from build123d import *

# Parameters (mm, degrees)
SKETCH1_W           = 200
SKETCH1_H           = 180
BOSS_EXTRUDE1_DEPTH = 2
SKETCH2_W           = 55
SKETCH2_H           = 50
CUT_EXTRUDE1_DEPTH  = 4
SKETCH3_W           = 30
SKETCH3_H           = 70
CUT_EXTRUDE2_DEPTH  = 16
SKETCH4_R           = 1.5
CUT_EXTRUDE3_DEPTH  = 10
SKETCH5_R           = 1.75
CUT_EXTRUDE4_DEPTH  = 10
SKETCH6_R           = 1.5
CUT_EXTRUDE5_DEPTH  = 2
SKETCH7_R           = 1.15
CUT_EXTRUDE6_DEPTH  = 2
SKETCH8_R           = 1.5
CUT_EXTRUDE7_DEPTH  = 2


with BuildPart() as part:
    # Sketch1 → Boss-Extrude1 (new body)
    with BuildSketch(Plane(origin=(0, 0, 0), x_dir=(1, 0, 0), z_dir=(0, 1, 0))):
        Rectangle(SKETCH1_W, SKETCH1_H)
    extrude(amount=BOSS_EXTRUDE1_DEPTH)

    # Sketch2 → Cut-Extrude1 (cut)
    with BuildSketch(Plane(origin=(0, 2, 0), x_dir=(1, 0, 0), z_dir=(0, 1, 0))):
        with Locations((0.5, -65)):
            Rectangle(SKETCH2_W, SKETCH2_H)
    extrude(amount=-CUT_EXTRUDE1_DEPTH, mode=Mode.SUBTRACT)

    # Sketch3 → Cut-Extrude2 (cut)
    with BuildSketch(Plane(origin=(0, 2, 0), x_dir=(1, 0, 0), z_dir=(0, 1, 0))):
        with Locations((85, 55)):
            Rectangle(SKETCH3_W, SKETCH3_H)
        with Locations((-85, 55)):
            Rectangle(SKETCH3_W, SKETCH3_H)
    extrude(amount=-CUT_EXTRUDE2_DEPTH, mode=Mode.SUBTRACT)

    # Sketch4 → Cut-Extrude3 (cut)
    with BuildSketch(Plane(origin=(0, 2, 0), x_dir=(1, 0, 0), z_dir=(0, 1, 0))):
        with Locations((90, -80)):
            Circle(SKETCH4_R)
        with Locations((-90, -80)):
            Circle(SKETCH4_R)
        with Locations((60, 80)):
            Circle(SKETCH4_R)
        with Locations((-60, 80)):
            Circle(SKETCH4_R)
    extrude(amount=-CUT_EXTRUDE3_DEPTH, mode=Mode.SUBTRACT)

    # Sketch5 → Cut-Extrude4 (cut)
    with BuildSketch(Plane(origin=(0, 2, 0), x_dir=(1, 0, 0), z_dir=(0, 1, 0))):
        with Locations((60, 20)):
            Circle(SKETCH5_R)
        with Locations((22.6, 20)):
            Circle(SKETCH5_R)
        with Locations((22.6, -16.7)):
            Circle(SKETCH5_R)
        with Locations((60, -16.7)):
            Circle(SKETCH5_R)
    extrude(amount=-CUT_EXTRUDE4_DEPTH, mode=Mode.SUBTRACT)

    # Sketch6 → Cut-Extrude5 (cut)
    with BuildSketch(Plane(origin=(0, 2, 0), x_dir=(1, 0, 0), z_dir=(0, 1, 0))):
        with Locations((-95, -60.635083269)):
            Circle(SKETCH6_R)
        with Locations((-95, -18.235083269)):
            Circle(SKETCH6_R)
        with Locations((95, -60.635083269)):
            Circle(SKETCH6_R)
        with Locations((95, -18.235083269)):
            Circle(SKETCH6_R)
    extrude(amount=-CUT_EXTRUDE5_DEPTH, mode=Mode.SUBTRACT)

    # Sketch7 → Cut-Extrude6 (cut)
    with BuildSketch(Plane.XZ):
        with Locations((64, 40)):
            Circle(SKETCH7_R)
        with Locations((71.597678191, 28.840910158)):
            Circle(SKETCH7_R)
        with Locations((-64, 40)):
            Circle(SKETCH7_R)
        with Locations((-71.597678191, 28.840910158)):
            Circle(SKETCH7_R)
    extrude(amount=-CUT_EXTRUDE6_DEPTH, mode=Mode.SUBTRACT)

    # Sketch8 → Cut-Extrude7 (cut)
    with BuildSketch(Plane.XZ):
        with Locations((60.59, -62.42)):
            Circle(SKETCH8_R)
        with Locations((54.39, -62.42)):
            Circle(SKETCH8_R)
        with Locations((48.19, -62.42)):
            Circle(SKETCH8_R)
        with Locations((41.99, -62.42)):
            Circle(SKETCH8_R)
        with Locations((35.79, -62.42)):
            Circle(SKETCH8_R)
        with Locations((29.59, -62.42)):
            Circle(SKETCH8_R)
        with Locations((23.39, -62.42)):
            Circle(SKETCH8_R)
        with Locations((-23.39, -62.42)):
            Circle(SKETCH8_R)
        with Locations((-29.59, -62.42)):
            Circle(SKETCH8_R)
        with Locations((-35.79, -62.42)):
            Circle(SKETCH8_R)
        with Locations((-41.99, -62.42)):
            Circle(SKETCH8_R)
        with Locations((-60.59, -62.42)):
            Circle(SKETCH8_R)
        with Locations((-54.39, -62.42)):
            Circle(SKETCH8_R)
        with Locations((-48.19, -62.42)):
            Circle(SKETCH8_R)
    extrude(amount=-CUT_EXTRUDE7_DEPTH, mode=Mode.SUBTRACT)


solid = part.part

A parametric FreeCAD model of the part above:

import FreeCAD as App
import Part
import Sketcher
from FreeCAD import Vector

doc = App.newDocument("Part")
body = doc.addObject("PartDesign::Body", "Body")

sketch1 = doc.addObject("Sketcher::SketchObject", "Sketch")
body.addObject(sketch1)
sketch1.AttachmentSupport = (doc.XZ_Plane, [""])
sketch1.MapMode = "FlatFace"
sketch1.addGeometry([
    Part.LineSegment(Vector(-100, -90, 0), Vector(-100, 90, 0)),
    Part.LineSegment(Vector(-100, 90, 0), Vector(100, 90, 0)),
    Part.LineSegment(Vector(100, 90, 0), Vector(100, -90, 0)),
    Part.LineSegment(Vector(100, -90, 0), Vector(-100, -90, 0)),
], False)
sketch1.addConstraint([
    Sketcher.Constraint("Coincident", 0, 2, 1, 1),
    Sketcher.Constraint("Coincident", 1, 2, 2, 1),
    Sketcher.Constraint("Coincident", 2, 2, 3, 1),
    Sketcher.Constraint("Coincident", 3, 2, 0, 1),
    Sketcher.Constraint("Vertical", 0),
    Sketcher.Constraint("Horizontal", 1),
    Sketcher.Constraint("Vertical", 2),
    Sketcher.Constraint("Horizontal", 3),
    Sketcher.Constraint("Symmetric", 0, 2, 2, 2, -1, 1),
    Sketcher.Constraint("DistanceX", 1, 1, 1, 2, 200.0),
    Sketcher.Constraint("DistanceY", 0, 1, 0, 2, 180.0),
])
pad1 = doc.addObject("PartDesign::Pad", "Pad")
body.addObject(pad1)
pad1.Profile = sketch1
pad1.Length = 2
pad1.Reversed = True

sketch2 = doc.addObject("Sketcher::SketchObject", "Sketch001")
body.addObject(sketch2)
sketch2.AttachmentSupport = (doc.XZ_Plane, [""])
sketch2.MapMode = "FlatFace"
sketch2.AttachmentOffset = App.Placement(Vector(0, 0, -2), App.Rotation())
sketch2.addGeometry([
    Part.LineSegment(Vector(-27, 40, 0), Vector(-27, 90, 0)),
    Part.LineSegment(Vector(-27, 90, 0), Vector(28, 90, 0)),
    Part.LineSegment(Vector(28, 90, 0), Vector(28, 40, 0)),
    Part.LineSegment(Vector(28, 40, 0), Vector(-27, 40, 0)),
], False)
sketch2.addConstraint([
    Sketcher.Constraint("Coincident", 0, 2, 1, 1),
    Sketcher.Constraint("Coincident", 1, 2, 2, 1),
    Sketcher.Constraint("Coincident", 2, 2, 3, 1),
    Sketcher.Constraint("Coincident", 3, 2, 0, 1),
    Sketcher.Constraint("Vertical", 0),
    Sketcher.Constraint("Horizontal", 1),
    Sketcher.Constraint("Vertical", 2),
    Sketcher.Constraint("Horizontal", 3),
    Sketcher.Constraint("DistanceX", 1, 1, 1, 2, 55.0),
    Sketcher.Constraint("DistanceY", 0, 1, 0, 2, 50.0),
    Sketcher.Constraint("DistanceX", 0, 2, -1, 1, 27.0),
    Sketcher.Constraint("DistanceY", -1, 1, 0, 2, 90.0),
])
pocket1 = doc.addObject("PartDesign::Pocket", "Pocket")
body.addObject(pocket1)
pocket1.Profile = sketch2
pocket1.Length = 4
pocket1.Reversed = True

sketch3 = doc.addObject("Sketcher::SketchObject", "Sketch002")
body.addObject(sketch3)
sketch3.AttachmentSupport = (doc.XZ_Plane, [""])
sketch3.MapMode = "FlatFace"
sketch3.AttachmentOffset = App.Placement(Vector(0, 0, -2), App.Rotation())
sketch3.addGeometry([
    Part.LineSegment(Vector(70, -90, 0), Vector(70, -20, 0)),
    Part.LineSegment(Vector(70, -20, 0), Vector(100, -20, 0)),
    Part.LineSegment(Vector(100, -20, 0), Vector(100, -90, 0)),
    Part.LineSegment(Vector(100, -90, 0), Vector(70, -90, 0)),
    Part.LineSegment(Vector(-100, -90, 0), Vector(-100, -20, 0)),
    Part.LineSegment(Vector(-100, -20, 0), Vector(-70, -20, 0)),
    Part.LineSegment(Vector(-70, -20, 0), Vector(-70, -90, 0)),
    Part.LineSegment(Vector(-70, -90, 0), Vector(-100, -90, 0)),
], False)
sketch3.addConstraint([
    Sketcher.Constraint("Coincident", 0, 2, 1, 1),
    Sketcher.Constraint("Coincident", 1, 2, 2, 1),
    Sketcher.Constraint("Coincident", 2, 2, 3, 1),
    Sketcher.Constraint("Coincident", 3, 2, 0, 1),
    Sketcher.Constraint("Coincident", 4, 2, 5, 1),
    Sketcher.Constraint("Coincident", 5, 2, 6, 1),
    Sketcher.Constraint("Coincident", 6, 2, 7, 1),
    Sketcher.Constraint("Coincident", 7, 2, 4, 1),
    Sketcher.Constraint("Vertical", 0),
    Sketcher.Constraint("Horizontal", 1),
    Sketcher.Constraint("Vertical", 2),
    Sketcher.Constraint("Horizontal", 3),
    Sketcher.Constraint("Vertical", 4),
    Sketcher.Constraint("Horizontal", 5),
    Sketcher.Constraint("Vertical", 6),
    Sketcher.Constraint("Horizontal", 7),
    Sketcher.Constraint("Symmetric", 1, 2, 4, 2, -2),
    Sketcher.Constraint("Symmetric", 3, 2, 6, 2, -2),
    Sketcher.Constraint("DistanceX", 1, 1, 1, 2, 30.0),
    Sketcher.Constraint("DistanceY", 0, 1, 0, 2, 70.0),
    Sketcher.Constraint("DistanceX", -1, 1, 0, 2, 70.0),
    Sketcher.Constraint("DistanceY", 0, 2, -1, 1, 20.0),
])
pocket2 = doc.addObject("PartDesign::Pocket", "Pocket001")
body.addObject(pocket2)
pocket2.Profile = sketch3
pocket2.Length = 16
pocket2.Reversed = True

sketch4 = doc.addObject("Sketcher::SketchObject", "Sketch003")
body.addObject(sketch4)
sketch4.AttachmentSupport = (doc.XZ_Plane, [""])
sketch4.MapMode = "FlatFace"
sketch4.AttachmentOffset = App.Placement(Vector(0, 0, -2), App.Rotation())
sketch4.addGeometry([
    Part.Circle(Vector(90, 80, 0), Vector(0, 0, 1), 1.5),
    Part.Circle(Vector(-90, 80, 0), Vector(0, 0, 1), 1.5),
    Part.Circle(Vector(60, -80, 0), Vector(0, 0, 1), 1.5),
    Part.Circle(Vector(-60, -80, 0), Vector(0, 0, 1), 1.5),
], False)
sketch4.addConstraint([
    Sketcher.Constraint("Equal", 0, 1),
    Sketcher.Constraint("Equal", 1, 2),
    Sketcher.Constraint("Equal", 2, 3),
    Sketcher.Constraint("Symmetric", 0, 3, 1, 3, -2),
    Sketcher.Constraint("Symmetric", 2, 3, 3, 3, -2),
    Sketcher.Constraint("Diameter", 0, 3.0),
    Sketcher.Constraint("DistanceX", -1, 1, 0, 3, 90.0),
    Sketcher.Constraint("DistanceY", -1, 1, 0, 3, 80.0),
    Sketcher.Constraint("DistanceX", -1, 1, 2, 3, 60.0),
    Sketcher.Constraint("DistanceY", 2, 3, -1, 1, 80.0),
])
pocket3 = doc.addObject("PartDesign::Pocket", "Pocket002")
body.addObject(pocket3)
pocket3.Profile = sketch4
pocket3.Length = 10
pocket3.Reversed = True

sketch5 = doc.addObject("Sketcher::SketchObject", "Sketch004")
body.addObject(sketch5)
sketch5.AttachmentSupport = (doc.XZ_Plane, [""])
sketch5.MapMode = "FlatFace"
sketch5.AttachmentOffset = App.Placement(Vector(0, 0, -2), App.Rotation())
sketch5.addGeometry([
    Part.Circle(Vector(60, -20, 0), Vector(0, 0, 1), 1.8),
    Part.Circle(Vector(22.6, -20, 0), Vector(0, 0, 1), 1.8),
    Part.Circle(Vector(22.6, 16.7, 0), Vector(0, 0, 1), 1.8),
    Part.Circle(Vector(60, 16.7, 0), Vector(0, 0, 1), 1.8),
], False)
sketch5.addConstraint([
    Sketcher.Constraint("Equal", 0, 1),
    Sketcher.Constraint("Equal", 1, 2),
    Sketcher.Constraint("Equal", 2, 3),
    Sketcher.Constraint("Horizontal", 0, 3, 1, 3),
    Sketcher.Constraint("Horizontal", 2, 3, 3, 3),
    Sketcher.Constraint("Vertical", 1, 3, 2, 3),
    Sketcher.Constraint("Vertical", 0, 3, 3, 3),
    Sketcher.Constraint("Diameter", 0, 3.5),
    Sketcher.Constraint("DistanceX", -1, 1, 0, 3, 60.0),
    Sketcher.Constraint("DistanceY", 0, 3, -1, 1, 20.0),
    Sketcher.Constraint("DistanceX", -1, 1, 1, 3, 22.6),
    Sketcher.Constraint("DistanceY", -1, 1, 2, 3, 16.7),
])
pocket4 = doc.addObject("PartDesign::Pocket", "Pocket003")
body.addObject(pocket4)
pocket4.Profile = sketch5
pocket4.Length = 10
pocket4.Reversed = True

sketch6 = doc.addObject("Sketcher::SketchObject", "Sketch005")
body.addObject(sketch6)
sketch6.AttachmentSupport = (doc.XZ_Plane, [""])
sketch6.MapMode = "FlatFace"
sketch6.AttachmentOffset = App.Placement(Vector(0, 0, -2), App.Rotation())
sketch6.addGeometry([
    Part.Circle(Vector(-95, 60.6, 0), Vector(0, 0, 1), 1.5),
    Part.Circle(Vector(-95, 18.2, 0), Vector(0, 0, 1), 1.5),
    Part.Circle(Vector(95, 60.6, 0), Vector(0, 0, 1), 1.5),
    Part.Circle(Vector(95, 18.2, 0), Vector(0, 0, 1), 1.5),
], False)
sketch6.addConstraint([
    Sketcher.Constraint("Equal", 0, 1),
    Sketcher.Constraint("Equal", 1, 2),
    Sketcher.Constraint("Equal", 2, 3),
    Sketcher.Constraint("Symmetric", 0, 3, 2, 3, -2),
    Sketcher.Constraint("Symmetric", 1, 3, 3, 3, -2),
    Sketcher.Constraint("Vertical", 0, 3, 1, 3),
    Sketcher.Constraint("Diameter", 0, 3.0),
    Sketcher.Constraint("DistanceX", 0, 3, -1, 1, 95.0),
    Sketcher.Constraint("DistanceY", 1, 3, 0, 3, 42.4),
    Sketcher.Constraint("DistanceY", -1, 1, 0, 3, 60.635083),
])
pocket5 = doc.addObject("PartDesign::Pocket", "Pocket004")
body.addObject(pocket5)
pocket5.Profile = sketch6
pocket5.Length = 2
pocket5.Reversed = True

sketch7 = doc.addObject("Sketcher::SketchObject", "Sketch006")
body.addObject(sketch7)
sketch7.AttachmentSupport = (doc.XZ_Plane, [""])
sketch7.MapMode = "FlatFace"
sketch7.addGeometry([
    Part.Circle(Vector(64, 40, 0), Vector(0, 0, 1), 1.1),
    Part.Circle(Vector(71.6, 28.8, 0), Vector(0, 0, 1), 1.1),
    Part.Circle(Vector(-64, 40, 0), Vector(0, 0, 1), 1.1),
    Part.Circle(Vector(-71.6, 28.8, 0), Vector(0, 0, 1), 1.1),
], False)
sketch7.addConstraint([
    Sketcher.Constraint("Equal", 0, 1),
    Sketcher.Constraint("Equal", 1, 2),
    Sketcher.Constraint("Equal", 2, 3),
    Sketcher.Constraint("Symmetric", 0, 3, 2, 3, -2),
    Sketcher.Constraint("Symmetric", 1, 3, 3, 3, -2),
    Sketcher.Constraint("Diameter", 0, 2.3),
    Sketcher.Constraint("DistanceX", -1, 1, 0, 3, 64.0),
    Sketcher.Constraint("DistanceY", -1, 1, 0, 3, 40.0),
    Sketcher.Constraint("DistanceX", -1, 1, 1, 3, 71.597678),
    Sketcher.Constraint("DistanceY", -1, 1, 1, 3, 28.84091),
])
pocket6 = doc.addObject("PartDesign::Pocket", "Pocket005")
body.addObject(pocket6)
pocket6.Profile = sketch7
pocket6.Length = 2

sketch8 = doc.addObject("Sketcher::SketchObject", "Sketch007")
body.addObject(sketch8)
sketch8.AttachmentSupport = (doc.XZ_Plane, [""])
sketch8.MapMode = "FlatFace"
sketch8.addGeometry([
    Part.Circle(Vector(60.6, -62.4, 0), Vector(0, 0, 1), 1.5),
    Part.Circle(Vector(54.4, -62.4, 0), Vector(0, 0, 1), 1.5),
    Part.Circle(Vector(48.2, -62.4, 0), Vector(0, 0, 1), 1.5),
    Part.Circle(Vector(42, -62.4, 0), Vector(0, 0, 1), 1.5),
    Part.Circle(Vector(35.8, -62.4, 0), Vector(0, 0, 1), 1.5),
    Part.Circle(Vector(29.6, -62.4, 0), Vector(0, 0, 1), 1.5),
    Part.Circle(Vector(23.4, -62.4, 0), Vector(0, 0, 1), 1.5),
    Part.Circle(Vector(-23.4, -62.4, 0), Vector(0, 0, 1), 1.5),
    Part.Circle(Vector(-29.6, -62.4, 0), Vector(0, 0, 1), 1.5),
    Part.Circle(Vector(-35.8, -62.4, 0), Vector(0, 0, 1), 1.5),
    Part.Circle(Vector(-42, -62.4, 0), Vector(0, 0, 1), 1.5),
    Part.Circle(Vector(-60.6, -62.4, 0), Vector(0, 0, 1), 1.5),
    Part.Circle(Vector(-54.4, -62.4, 0), Vector(0, 0, 1), 1.5),
    Part.Circle(Vector(-48.2, -62.4, 0), Vector(0, 0, 1), 1.5),
], False)
sketch8.addConstraint([
    Sketcher.Constraint("Equal", 0, 1),
    Sketcher.Constraint("Equal", 1, 2),
    Sketcher.Constraint("Equal", 2, 3),
    Sketcher.Constraint("Equal", 3, 4),
    Sketcher.Constraint("Equal", 4, 5),
    Sketcher.Constraint("Equal", 5, 6),
    Sketcher.Constraint("Equal", 6, 7),
    Sketcher.Constraint("Equal", 7, 8),
    Sketcher.Constraint("Equal", 8, 9),
    Sketcher.Constraint("Equal", 9, 10),
    Sketcher.Constraint("Equal", 10, 11),
    Sketcher.Constraint("Equal", 11, 12),
    Sketcher.Constraint("Equal", 12, 13),
    Sketcher.Constraint("Symmetric", 6, 3, 7, 3, -2),
    Sketcher.Constraint("Symmetric", 5, 3, 8, 3, -2),
    Sketcher.Constraint("Symmetric", 4, 3, 9, 3, -2),
    Sketcher.Constraint("Symmetric", 3, 3, 10, 3, -2),
    Sketcher.Constraint("Symmetric", 0, 3, 11, 3, -2),
    Sketcher.Constraint("Symmetric", 1, 3, 12, 3, -2),
    Sketcher.Constraint("Symmetric", 2, 3, 13, 3, -2),
    Sketcher.Constraint("Horizontal", 0, 3, 1, 3),
    Sketcher.Constraint("Horizontal", 1, 3, 2, 3),
    Sketcher.Constraint("Horizontal", 2, 3, 3, 3),
    Sketcher.Constraint("Horizontal", 3, 3, 4, 3),
    Sketcher.Constraint("Horizontal", 4, 3, 5, 3),
    Sketcher.Constraint("Horizontal", 5, 3, 6, 3),
    Sketcher.Constraint("Diameter", 0, 3.0),
    Sketcher.Constraint("DistanceX", 5, 3, 0, 3, 31.0),
    Sketcher.Constraint("DistanceX", 6, 3, 1, 3, 31.0),
    Sketcher.Constraint("DistanceX", 1, 3, 0, 3, 6.2),
    Sketcher.Constraint("DistanceX", 2, 3, 1, 3, 6.2),
    Sketcher.Constraint("DistanceX", 3, 3, 2, 3, 6.2),
    Sketcher.Constraint("DistanceX", 4, 3, 3, 3, 6.2),
    Sketcher.Constraint("DistanceX", -1, 1, 0, 3, 60.59),
    Sketcher.Constraint("DistanceY", 0, 3, -1, 1, 62.42),
])
pocket7 = doc.addObject("PartDesign::Pocket", "Pocket006")
body.addObject(pocket7)
pocket7.Profile = sketch8
pocket7.Length = 2

doc.recompute()
